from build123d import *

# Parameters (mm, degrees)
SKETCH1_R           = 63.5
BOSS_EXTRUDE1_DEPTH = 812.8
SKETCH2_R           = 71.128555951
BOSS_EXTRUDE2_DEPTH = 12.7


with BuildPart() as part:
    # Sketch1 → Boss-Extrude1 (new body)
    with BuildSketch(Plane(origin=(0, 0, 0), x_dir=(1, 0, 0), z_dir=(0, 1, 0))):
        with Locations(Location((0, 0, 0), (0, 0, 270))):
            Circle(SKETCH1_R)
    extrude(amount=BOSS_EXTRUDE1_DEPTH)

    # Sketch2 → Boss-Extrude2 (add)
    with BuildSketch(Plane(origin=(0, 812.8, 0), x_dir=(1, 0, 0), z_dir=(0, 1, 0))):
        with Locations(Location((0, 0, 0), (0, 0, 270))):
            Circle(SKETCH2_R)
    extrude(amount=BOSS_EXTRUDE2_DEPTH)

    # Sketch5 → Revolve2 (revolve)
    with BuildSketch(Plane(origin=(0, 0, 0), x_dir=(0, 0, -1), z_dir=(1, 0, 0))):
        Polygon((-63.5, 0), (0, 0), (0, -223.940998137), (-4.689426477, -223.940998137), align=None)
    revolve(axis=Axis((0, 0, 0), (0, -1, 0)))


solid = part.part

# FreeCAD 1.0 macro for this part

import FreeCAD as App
import Part
import Sketcher

V = App.Vector
Q = App.Units.Quantity

doc = App.newDocument("Part")
params = doc.addObject("Spreadsheet::Sheet", "Params")
for row, (alias, value) in enumerate([
    ("sketch1_diameter", "5 in"),
    ("pad1_length", "32 in"),
    ("pad2_length", "0.5 in"),
    ("sketch3_height", "2.5 in"),
    ("revolution_angle", "360 deg"),
], start=1):
    params.set(f"A{row}", alias)
    params.set(f"B{row}", "=" + value)
    params.setAlias(f"B{row}", alias)

body = doc.addObject("PartDesign::Body", "Body")

sketch1 = doc.addObject("Sketcher::SketchObject", "Sketch")
body.addObject(sketch1)
sketch1.AttachmentSupport = (doc.XZ_Plane, [""])
sketch1.MapMode = "FlatFace"
sketch1.addGeometry(Part.Circle(V(0, 0, 0), V(0, 0, 1), 64), False)
sketch1.addConstraint([
    Sketcher.Constraint("Coincident", 0, 3, -1, 1),
    Sketcher.Constraint("Diameter", 0, Q("5 in")),
])
sketch1.setExpression("Constraints[1]", "Params.sketch1_diameter")
pad1 = doc.addObject("PartDesign::Pad", "Pad")
body.addObject(pad1)
pad1.Profile = sketch1
pad1.setExpression("Length", "Params.pad1_length")
pad1.Reversed = True

sketch2 = doc.addObject("Sketcher::SketchObject", "Sketch001")
body.addObject(sketch2)
sketch2.AttachmentSupport = (doc.XZ_Plane, [""])
sketch2.MapMode = "FlatFace"
sketch2.AttachmentOffset = App.Placement(V(0, 0, -32 * 25.4), App.Rotation())
sketch2.addGeometry(Part.Circle(V(0, 0, 0), V(0, 0, 1), 71), False)
sketch2.addConstraint([
    Sketcher.Constraint("Coincident", 0, 3, -1, 1),
    Sketcher.Constraint("Diameter", 0, Q("142.257112 mm")),
])
pad2 = doc.addObject("PartDesign::Pad", "Pad001")
body.addObject(pad2)
pad2.Profile = sketch2
pad2.setExpression("Length", "Params.pad2_length")
pad2.Reversed = True

sketch3 = doc.addObject("Sketcher::SketchObject", "Sketch002")
body.addObject(sketch3)
sketch3.AttachmentSupport = (doc.YZ_Plane, [""])
sketch3.MapMode = "FlatFace"
sketch3.addGeometry([
    Part.LineSegment(V(0, 0, 0), V(0, 63.5, 0)),
    Part.LineSegment(V(0, 63.5, 0), V(-223.9, 4.7, 0)),
    Part.LineSegment(V(-223.9, 4.7, 0), V(-223.9, 0, 0)),
    Part.LineSegment(V(-223.9, 0, 0), V(0, 0, 0)),
], False)
sketch3.addConstraint([
    Sketcher.Constraint("Coincident", 0, 2, 1, 1),
    Sketcher.Constraint("Coincident", 1, 2, 2, 1),
    Sketcher.Constraint("Coincident", 2, 2, 3, 1),
    Sketcher.Constraint("Coincident", 3, 2, 0, 1),
    Sketcher.Constraint("Vertical", 0),
    Sketcher.Constraint("Vertical", 2),
    Sketcher.Constraint("Horizontal", 3),
    Sketcher.Constraint("Coincident", 3, 2, -1, 1),
    Sketcher.Constraint("DistanceY", 0, 1, 0, 2, Q("2.5 in")),
    Sketcher.Constraint("DistanceX", 3, 1, 3, 2, Q("223.940998 mm")),
    Sketcher.Constraint("DistanceY", 2, 2, 2, 1, Q("4.689426 mm")),
])
sketch3.setExpression("Constraints[8]", "Params.sketch3_height")
revolution = doc.addObject("PartDesign::Revolution", "Revolution")
body.addObject(revolution)
revolution.Profile = sketch3
revolution.ReferenceAxis = (sketch3, ["H_Axis"])
revolution.setExpression("Angle", "Params.revolution_angle")

doc.recompute()
